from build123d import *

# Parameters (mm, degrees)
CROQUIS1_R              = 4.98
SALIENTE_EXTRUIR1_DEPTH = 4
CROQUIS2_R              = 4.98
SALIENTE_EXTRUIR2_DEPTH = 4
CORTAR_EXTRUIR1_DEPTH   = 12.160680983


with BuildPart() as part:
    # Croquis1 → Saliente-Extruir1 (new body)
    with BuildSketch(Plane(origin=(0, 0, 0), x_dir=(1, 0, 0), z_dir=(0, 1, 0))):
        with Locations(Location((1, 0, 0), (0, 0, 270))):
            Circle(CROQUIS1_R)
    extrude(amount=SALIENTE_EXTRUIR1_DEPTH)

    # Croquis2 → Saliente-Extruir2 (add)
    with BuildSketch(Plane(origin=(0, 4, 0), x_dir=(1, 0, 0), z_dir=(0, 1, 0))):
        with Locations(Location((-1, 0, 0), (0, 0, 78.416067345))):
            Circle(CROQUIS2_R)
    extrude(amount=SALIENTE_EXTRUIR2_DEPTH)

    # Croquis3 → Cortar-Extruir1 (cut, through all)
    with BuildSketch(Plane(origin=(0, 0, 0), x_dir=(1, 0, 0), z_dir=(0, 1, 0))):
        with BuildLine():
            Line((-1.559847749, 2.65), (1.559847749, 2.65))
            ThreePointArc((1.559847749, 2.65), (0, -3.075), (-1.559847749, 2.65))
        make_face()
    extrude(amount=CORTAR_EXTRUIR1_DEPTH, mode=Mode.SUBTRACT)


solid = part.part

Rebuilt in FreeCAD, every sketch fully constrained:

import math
import FreeCAD as App
import Part
import Sketcher

doc = App.newDocument("Part")
body = doc.addObject("PartDesign::Body", "Body")

sketch1 = body.newObject("Sketcher::SketchObject", "Sketch")
sketch1.AttachmentSupport = (doc.getObject("XZ_Plane"), [""])
sketch1.MapMode = "FlatFace"
sketch1.addGeometry(Part.Circle(App.Vector(1, 0, 0), App.Vector(0, 0, 1), 5), False)
sketch1.addConstraint([
    Sketcher.Constraint("PointOnObject", 0, 3, -1),
    Sketcher.Constraint("Diameter", 0, 9.96),
    Sketcher.Constraint("DistanceX", -1, 1, 0, 3, 1.0),
])
pad1 = body.newObject("PartDesign::Pad", "Pad")
pad1.Profile = sketch1
pad1.Length = 4
pad1.Reversed = True

sketch2 = body.newObject("Sketcher::SketchObject", "Sketch001")
sketch2.AttachmentSupport = (doc.getObject("XZ_Plane"), [""])
sketch2.MapMode = "FlatFace"
sketch2.AttachmentOffset = App.Placement(App.Vector(0, 0, -4), App.Rotation())
sketch2.addGeometry(Part.Circle(App.Vector(-1, 0, 0), App.Vector(0, 0, 1), 5), False)
sketch2.addConstraint([
    Sketcher.Constraint("PointOnObject", 0, 3, -1),
    Sketcher.Constraint("Diameter", 0, 9.96),
    Sketcher.Constraint("DistanceX", 0, 3, -1, 1, 1.0),
])
pad2 = body.newObject("PartDesign::Pad", "Pad001")
pad2.Profile = sketch2
pad2.Length = 4
pad2.Reversed = True

sketch3 = body.newObject("Sketcher::SketchObject", "Sketch002")
sketch3.AttachmentSupport = (doc.getObject("XZ_Plane"), [""])
sketch3.MapMode = "FlatFace"
sketch3.addGeometry([
    Part.LineSegment(App.Vector(1.6, -2.6, 0), App.Vector(-1.6, -2.6, 0)),
    Part.ArcOfCircle(Part.Circle(App.Vector(0, 0, 0), App.Vector(0, 0, 1), 3.1), math.radians(-60), math.radians(240)),
], False)
sketch3.addConstraint([
    Sketcher.Constraint("Coincident", 0, 1, 1, 1),
    Sketcher.Constraint("Coincident", 1, 2, 0, 2),
    Sketcher.Constraint("Horizontal", 0),
    Sketcher.Constraint("Coincident", 1, 3, -1, 1),
    Sketcher.Constraint("Radius", 1, 3.075),
    Sketcher.Constraint("DistanceY", 0, 1, -1, 1, 2.65),
])
pocket1 = body.newObject("PartDesign::Pocket", "Pocket")
pocket1.Profile = sketch3
pocket1.Type = "ThroughAll"

doc.recompute()
